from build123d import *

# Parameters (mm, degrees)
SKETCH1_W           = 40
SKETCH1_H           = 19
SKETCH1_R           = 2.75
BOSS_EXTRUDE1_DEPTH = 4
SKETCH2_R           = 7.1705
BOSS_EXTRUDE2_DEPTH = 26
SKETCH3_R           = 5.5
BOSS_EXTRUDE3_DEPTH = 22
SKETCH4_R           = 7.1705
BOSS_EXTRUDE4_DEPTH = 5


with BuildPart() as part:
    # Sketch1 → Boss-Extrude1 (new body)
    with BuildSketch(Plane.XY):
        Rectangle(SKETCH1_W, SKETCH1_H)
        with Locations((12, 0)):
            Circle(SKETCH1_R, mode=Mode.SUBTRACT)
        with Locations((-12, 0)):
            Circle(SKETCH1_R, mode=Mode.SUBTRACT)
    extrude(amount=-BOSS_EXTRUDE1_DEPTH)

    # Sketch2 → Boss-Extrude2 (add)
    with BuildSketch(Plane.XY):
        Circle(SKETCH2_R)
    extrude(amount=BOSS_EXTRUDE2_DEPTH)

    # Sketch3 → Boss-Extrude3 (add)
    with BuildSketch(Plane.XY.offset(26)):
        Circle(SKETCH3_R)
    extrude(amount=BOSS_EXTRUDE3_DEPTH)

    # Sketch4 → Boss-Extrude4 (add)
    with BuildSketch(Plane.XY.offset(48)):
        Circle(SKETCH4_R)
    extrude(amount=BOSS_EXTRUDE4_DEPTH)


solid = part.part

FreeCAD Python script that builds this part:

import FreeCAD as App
import Part
import Sketcher

doc = App.newDocument("Part")
body = doc.addObject("PartDesign::Body", "Body")

sketch1 = body.newObject("Sketcher::SketchObject", "Sketch")
sketch1.AttachmentSupport = (doc.getObject("XY_Plane"), [""])
sketch1.MapMode = "FlatFace"
sketch1.addGeometry([
    Part.LineSegment(App.Vector(-20, 9.5, 0), App.Vector(-20, -9.5, 0)),
    Part.LineSegment(App.Vector(-20, -9.5, 0), App.Vector(20, -9.5, 0)),
    Part.LineSegment(App.Vector(20, -9.5, 0), App.Vector(20, 9.5, 0)),
    Part.LineSegment(App.Vector(20, 9.5, 0), App.Vector(-20, 9.5, 0)),
    Part.Circle(App.Vector(-12, 0, 0), App.Vector(0, 0, 1), 2.8),
    Part.Circle(App.Vector(12, 0, 0), App.Vector(0, 0, 1), 2.8),
], False)
sketch1.addConstraint([
    Sketcher.Constraint("Coincident", 0, 2, 1, 1),
    Sketcher.Constraint("Coincident", 1, 2, 2, 1),
    Sketcher.Constraint("Coincident", 2, 2, 3, 1),
    Sketcher.Constraint("Coincident", 3, 2, 0, 1),
    Sketcher.Constraint("Vertical", 0),
    Sketcher.Constraint("Horizontal", 1),
    Sketcher.Constraint("Vertical", 2),
    Sketcher.Constraint("Horizontal", 3),
    Sketcher.Constraint("Equal", 4, 5),
    Sketcher.Constraint("Symmetric", 4, 3, 5, 3, -1, 1),
    Sketcher.Constraint("Symmetric", 0, 2, 2, 2, -1, 1),
    Sketcher.Constraint("PointOnObject", 4, 3, -1),
    Sketcher.Constraint("Diameter", 4, 5.5),
    Sketcher.Constraint("DistanceX", 1, 1, 1, 2, 40.0),
    Sketcher.Constraint("DistanceY", 0, 2, 0, 1, 19.0),
    Sketcher.Constraint("DistanceX", 4, 3, -1, 1, 12.0),
])
pad1 = body.newObject("PartDesign::Pad", "Pad")
pad1.Profile = sketch1
pad1.Length = 4
pad1.Reversed = True

sketch2 = body.newObject("Sketcher::SketchObject", "Sketch001")
sketch2.AttachmentSupport = (doc.getObject("XY_Plane"), [""])
sketch2.MapMode = "FlatFace"
sketch2.addGeometry(Part.Circle(App.Vector(0, 0, 0), App.Vector(0, 0, 1), 7), False)
sketch2.addConstraint([
    Sketcher.Constraint("Coincident", 0, 3, -1, 1),
    Sketcher.Constraint("Diameter", 0, 14.341),
])
pad2 = body.newObject("PartDesign::Pad", "Pad001")
pad2.Profile = sketch2
pad2.Length = 26

sketch3 = body.newObject("Sketcher::SketchObject", "Sketch002")
sketch3.AttachmentSupport = (doc.getObject("XY_Plane"), [""])
sketch3.MapMode = "FlatFace"
sketch3.AttachmentOffset = App.Placement(App.Vector(0, 0, 26), App.Rotation())
sketch3.addGeometry(Part.Circle(App.Vector(0, 0, 0), App.Vector(0, 0, 1), 6), False)
sketch3.addConstraint([
    Sketcher.Constraint("Coincident", 0, 3, -1, 1),
    Sketcher.Constraint("Diameter", 0, 11.0),
])
pad3 = body.newObject("PartDesign::Pad", "Pad002")
pad3.Profile = sketch3
pad3.Length = 22

sketch4 = body.newObject("Sketcher::SketchObject", "Sketch003")
sketch4.AttachmentSupport = (doc.getObject("XY_Plane"), [""])
sketch4.MapMode = "FlatFace"
sketch4.AttachmentOffset = App.Placement(App.Vector(0, 0, 48), App.Rotation())
sketch4.addGeometry(Part.Circle(App.Vector(0, 0, 0), App.Vector(0, 0, 1), 7), False)
sketch4.addConstraint([
    Sketcher.Constraint("Coincident", 0, 3, -1, 1),
    Sketcher.Constraint("Diameter", 0, 14.341),
])
pad4 = body.newObject("PartDesign::Pad", "Pad003")
pad4.Profile = sketch4
pad4.Length = 5

doc.recompute()
